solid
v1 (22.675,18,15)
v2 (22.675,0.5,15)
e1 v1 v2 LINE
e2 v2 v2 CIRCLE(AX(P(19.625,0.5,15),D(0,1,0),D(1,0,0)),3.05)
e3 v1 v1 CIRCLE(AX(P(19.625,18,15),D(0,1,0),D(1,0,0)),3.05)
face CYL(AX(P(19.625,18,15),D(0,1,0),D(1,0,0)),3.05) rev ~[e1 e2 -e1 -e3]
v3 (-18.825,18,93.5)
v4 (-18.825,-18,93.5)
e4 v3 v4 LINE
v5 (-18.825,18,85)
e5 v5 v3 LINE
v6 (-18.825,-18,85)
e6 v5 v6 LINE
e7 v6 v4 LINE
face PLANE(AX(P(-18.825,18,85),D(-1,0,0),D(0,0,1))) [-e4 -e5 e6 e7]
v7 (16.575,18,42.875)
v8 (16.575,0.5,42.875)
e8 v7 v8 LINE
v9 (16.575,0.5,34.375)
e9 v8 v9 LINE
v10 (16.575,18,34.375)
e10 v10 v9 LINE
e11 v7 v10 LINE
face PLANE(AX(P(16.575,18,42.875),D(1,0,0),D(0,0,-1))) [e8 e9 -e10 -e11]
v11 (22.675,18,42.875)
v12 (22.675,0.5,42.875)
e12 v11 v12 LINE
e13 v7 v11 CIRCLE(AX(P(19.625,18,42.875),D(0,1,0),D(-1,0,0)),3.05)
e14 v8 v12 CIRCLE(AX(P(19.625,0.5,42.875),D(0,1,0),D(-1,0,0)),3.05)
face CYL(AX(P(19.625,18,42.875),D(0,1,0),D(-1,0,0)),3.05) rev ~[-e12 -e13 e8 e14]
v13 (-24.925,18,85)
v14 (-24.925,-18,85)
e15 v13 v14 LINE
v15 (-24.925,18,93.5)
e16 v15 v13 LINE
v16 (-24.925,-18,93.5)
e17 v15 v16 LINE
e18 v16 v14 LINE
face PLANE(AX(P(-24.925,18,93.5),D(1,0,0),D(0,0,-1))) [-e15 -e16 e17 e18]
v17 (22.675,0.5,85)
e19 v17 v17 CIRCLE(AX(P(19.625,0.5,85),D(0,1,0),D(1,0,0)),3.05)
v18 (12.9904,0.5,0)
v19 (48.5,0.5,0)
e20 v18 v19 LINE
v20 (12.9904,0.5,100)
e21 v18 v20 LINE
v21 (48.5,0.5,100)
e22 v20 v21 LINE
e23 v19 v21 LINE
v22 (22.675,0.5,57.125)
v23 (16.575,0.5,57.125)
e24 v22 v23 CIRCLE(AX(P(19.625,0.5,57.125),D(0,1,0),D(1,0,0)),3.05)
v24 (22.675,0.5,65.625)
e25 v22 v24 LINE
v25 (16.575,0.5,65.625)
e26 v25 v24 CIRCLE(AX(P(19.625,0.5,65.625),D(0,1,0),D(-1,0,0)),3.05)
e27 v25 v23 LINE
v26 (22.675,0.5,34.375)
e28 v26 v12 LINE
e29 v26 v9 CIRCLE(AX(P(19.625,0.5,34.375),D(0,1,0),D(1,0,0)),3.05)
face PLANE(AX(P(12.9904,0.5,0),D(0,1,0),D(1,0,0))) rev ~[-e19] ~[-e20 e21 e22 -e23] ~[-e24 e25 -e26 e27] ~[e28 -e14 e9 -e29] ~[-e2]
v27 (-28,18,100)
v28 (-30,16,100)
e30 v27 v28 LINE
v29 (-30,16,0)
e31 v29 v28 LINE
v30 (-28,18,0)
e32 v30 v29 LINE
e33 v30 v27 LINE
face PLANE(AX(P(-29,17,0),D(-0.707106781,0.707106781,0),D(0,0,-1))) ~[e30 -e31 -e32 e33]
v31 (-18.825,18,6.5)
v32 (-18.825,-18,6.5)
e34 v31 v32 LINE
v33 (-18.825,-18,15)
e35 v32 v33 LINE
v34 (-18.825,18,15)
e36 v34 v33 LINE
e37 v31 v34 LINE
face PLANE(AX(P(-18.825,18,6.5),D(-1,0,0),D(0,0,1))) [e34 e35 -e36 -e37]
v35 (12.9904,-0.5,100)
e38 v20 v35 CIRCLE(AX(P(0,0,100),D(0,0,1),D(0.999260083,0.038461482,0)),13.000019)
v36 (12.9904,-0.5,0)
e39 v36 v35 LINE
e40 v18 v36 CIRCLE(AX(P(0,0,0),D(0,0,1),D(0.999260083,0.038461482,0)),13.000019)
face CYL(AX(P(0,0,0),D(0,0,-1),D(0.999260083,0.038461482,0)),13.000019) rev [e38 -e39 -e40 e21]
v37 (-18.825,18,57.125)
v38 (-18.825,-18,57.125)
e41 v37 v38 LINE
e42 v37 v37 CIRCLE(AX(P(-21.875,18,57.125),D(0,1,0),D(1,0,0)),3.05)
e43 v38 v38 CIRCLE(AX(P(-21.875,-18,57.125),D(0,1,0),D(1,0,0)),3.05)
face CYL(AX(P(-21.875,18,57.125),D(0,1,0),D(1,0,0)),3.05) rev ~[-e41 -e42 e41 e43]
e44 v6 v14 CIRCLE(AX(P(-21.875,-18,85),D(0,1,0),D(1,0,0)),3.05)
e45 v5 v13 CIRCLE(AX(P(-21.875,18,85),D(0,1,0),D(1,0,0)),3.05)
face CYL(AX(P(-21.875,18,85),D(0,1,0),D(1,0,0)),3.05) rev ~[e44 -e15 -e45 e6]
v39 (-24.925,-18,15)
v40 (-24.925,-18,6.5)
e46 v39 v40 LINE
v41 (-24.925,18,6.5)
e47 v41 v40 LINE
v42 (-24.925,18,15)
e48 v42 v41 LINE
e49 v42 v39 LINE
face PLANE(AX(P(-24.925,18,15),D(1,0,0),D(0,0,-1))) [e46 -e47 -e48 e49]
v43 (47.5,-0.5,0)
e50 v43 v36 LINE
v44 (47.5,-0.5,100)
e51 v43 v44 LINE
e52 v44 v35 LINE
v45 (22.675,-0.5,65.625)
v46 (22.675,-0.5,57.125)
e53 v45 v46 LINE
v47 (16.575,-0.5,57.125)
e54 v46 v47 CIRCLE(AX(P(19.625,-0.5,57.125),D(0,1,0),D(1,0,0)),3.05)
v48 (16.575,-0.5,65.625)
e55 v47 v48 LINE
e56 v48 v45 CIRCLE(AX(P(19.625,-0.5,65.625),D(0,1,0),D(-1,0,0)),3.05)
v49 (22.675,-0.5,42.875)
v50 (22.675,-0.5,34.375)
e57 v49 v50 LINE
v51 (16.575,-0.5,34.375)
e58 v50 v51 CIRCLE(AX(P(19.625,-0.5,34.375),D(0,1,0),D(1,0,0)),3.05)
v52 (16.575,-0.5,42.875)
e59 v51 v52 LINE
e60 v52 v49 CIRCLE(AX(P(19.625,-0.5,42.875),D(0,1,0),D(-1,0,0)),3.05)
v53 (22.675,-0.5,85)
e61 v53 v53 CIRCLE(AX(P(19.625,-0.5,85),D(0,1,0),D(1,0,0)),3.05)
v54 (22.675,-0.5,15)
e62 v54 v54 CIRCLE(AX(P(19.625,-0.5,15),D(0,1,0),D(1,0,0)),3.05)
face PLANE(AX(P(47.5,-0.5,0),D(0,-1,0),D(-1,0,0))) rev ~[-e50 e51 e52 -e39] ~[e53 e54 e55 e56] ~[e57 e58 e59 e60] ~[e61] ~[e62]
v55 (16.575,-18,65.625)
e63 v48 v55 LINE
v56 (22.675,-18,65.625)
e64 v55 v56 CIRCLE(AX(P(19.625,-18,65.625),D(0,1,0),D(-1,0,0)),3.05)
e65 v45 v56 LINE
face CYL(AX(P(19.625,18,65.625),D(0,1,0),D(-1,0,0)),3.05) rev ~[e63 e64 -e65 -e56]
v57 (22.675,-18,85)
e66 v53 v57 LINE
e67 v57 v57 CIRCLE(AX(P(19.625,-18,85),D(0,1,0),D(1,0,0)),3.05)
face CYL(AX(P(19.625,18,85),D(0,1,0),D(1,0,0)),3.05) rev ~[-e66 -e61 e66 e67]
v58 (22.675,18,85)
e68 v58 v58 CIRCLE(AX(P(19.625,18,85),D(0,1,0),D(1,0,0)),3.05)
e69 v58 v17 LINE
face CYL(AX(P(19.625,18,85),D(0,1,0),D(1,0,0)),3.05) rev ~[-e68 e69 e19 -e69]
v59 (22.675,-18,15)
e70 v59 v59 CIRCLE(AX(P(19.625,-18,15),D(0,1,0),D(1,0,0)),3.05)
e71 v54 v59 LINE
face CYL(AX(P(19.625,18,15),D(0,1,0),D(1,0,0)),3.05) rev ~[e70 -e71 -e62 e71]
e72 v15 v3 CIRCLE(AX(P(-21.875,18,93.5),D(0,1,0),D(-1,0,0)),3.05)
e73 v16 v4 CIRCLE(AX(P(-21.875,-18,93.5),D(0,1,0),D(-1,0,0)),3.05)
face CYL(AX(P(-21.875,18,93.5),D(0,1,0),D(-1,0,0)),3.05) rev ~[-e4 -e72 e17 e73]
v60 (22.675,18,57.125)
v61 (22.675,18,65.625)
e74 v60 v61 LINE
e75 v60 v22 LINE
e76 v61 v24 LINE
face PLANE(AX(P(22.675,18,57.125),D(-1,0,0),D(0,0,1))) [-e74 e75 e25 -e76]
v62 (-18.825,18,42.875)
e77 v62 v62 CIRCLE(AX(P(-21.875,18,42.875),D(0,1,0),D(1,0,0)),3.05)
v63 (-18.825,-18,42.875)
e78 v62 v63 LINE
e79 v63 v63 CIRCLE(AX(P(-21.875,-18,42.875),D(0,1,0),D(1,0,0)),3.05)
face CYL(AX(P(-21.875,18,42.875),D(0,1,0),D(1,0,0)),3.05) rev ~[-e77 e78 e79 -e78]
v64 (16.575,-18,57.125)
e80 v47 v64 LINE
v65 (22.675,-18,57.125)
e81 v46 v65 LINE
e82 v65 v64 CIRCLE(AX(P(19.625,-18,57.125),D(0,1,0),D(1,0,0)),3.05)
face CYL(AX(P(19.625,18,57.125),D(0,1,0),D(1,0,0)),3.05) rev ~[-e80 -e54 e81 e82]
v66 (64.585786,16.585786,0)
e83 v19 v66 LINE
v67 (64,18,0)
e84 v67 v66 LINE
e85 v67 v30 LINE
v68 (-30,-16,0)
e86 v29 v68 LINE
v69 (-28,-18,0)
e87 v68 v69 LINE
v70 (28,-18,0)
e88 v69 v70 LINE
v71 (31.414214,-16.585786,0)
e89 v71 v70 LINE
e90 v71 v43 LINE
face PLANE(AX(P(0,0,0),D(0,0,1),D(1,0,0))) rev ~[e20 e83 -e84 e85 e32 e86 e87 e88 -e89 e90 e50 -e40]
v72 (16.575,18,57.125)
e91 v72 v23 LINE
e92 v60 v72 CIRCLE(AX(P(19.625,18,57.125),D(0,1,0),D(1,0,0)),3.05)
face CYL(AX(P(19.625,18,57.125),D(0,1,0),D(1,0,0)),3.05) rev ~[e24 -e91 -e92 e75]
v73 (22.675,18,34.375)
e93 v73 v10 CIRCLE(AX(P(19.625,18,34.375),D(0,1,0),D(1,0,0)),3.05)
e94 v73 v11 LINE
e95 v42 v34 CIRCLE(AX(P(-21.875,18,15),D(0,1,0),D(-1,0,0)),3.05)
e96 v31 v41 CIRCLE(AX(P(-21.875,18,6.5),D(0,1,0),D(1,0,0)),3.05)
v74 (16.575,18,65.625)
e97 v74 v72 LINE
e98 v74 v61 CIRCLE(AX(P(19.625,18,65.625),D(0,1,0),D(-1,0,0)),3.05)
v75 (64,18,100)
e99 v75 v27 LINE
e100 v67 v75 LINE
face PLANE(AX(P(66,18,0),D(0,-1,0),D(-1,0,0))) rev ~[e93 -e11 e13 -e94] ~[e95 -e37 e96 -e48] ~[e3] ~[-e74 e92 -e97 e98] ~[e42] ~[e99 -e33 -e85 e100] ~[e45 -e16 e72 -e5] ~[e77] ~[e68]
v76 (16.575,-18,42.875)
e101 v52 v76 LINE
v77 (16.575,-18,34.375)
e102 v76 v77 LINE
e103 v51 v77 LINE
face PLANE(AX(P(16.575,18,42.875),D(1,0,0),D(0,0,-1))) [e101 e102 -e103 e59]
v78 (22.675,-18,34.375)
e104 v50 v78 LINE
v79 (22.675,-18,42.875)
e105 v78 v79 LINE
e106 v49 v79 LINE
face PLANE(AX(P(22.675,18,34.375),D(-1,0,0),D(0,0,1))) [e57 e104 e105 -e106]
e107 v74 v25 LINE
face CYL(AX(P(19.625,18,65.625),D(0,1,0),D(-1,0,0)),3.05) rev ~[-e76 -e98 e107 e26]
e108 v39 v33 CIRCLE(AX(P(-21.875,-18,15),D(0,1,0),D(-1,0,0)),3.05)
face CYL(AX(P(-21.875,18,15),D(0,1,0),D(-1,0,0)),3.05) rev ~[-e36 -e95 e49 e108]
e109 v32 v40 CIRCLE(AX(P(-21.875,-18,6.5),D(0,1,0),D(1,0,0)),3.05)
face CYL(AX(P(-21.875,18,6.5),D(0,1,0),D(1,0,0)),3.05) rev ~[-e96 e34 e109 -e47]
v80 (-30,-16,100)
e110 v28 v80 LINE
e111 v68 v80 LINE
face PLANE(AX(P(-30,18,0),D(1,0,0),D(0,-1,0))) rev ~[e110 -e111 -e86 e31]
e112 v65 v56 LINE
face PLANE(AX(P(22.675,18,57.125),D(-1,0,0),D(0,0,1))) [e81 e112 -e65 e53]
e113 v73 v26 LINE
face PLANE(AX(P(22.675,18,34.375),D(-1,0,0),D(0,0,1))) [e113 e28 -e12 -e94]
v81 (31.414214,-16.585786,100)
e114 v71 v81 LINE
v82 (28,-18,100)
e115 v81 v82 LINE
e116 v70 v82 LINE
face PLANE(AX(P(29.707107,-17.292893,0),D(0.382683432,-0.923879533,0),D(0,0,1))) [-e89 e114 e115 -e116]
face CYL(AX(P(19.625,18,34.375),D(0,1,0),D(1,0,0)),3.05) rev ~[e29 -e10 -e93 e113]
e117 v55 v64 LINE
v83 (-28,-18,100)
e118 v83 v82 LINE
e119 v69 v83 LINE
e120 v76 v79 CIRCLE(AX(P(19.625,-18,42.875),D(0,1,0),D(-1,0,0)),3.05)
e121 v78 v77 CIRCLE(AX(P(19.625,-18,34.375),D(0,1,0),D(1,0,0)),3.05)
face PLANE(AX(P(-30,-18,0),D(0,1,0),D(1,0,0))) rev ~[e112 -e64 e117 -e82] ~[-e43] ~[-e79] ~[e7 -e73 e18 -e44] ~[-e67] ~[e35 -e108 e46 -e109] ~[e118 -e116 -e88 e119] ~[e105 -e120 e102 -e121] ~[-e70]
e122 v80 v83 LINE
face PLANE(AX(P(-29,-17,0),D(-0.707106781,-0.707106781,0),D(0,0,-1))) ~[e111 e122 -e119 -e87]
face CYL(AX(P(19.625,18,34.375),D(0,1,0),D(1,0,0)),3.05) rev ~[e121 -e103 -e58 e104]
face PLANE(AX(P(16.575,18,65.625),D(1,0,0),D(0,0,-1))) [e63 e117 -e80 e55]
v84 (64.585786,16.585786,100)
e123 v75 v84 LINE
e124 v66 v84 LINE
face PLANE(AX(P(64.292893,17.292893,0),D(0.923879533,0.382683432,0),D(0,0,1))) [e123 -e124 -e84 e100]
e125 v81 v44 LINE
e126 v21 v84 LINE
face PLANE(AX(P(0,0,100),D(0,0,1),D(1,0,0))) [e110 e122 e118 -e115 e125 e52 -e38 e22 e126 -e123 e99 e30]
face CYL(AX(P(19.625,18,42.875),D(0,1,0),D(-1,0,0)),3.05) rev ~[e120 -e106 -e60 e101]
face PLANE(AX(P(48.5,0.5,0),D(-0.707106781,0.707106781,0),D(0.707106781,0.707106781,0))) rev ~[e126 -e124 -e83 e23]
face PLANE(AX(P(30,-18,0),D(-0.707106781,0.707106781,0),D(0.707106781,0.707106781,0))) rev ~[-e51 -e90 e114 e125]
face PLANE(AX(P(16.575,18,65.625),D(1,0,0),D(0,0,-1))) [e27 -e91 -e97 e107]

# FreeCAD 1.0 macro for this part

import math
import FreeCAD as App
import Part
import Sketcher
from FreeCAD import Vector


def edges_at(feature, points):
    """Names of the edges that pass closest to the given points."""
    edges = feature.Shape.Edges
    near = lambda p: min(range(len(edges)), key=lambda i: edges[i].distToShape(Part.Vertex(*p))[0])
    return sorted({f"Edge{near(p) + 1}" for p in points})

doc = App.newDocument("Part")
body = doc.addObject("PartDesign::Body", "Body")

sketch1 = body.newObject("Sketcher::SketchObject", "Sketch")
sketch1.AttachmentSupport = (doc.getObject("XY_Plane"), [""])
sketch1.MapMode = "FlatFace"
sketch1.addGeometry(Part.LineSegment(Vector(66, 18, 0), Vector(-30, 18, 0)), False)
sketch1.addGeometry(Part.LineSegment(Vector(-30, 18, 0), Vector(-30, -18, 0)), False)
sketch1.addGeometry(Part.LineSegment(Vector(-30, -18, 0), Vector(30, -18, 0)), False)
sketch1.addGeometry(Part.LineSegment(Vector(30, -18, 0), Vector(47.5, -0.5, 0)), False)
sketch1.addGeometry(Part.LineSegment(Vector(47.5, -0.5, 0), Vector(13, -0.5, 0)), False)
sketch1.addGeometry(Part.ArcOfCircle(Part.Circle(Vector(0, 0, 0), Vector(0, 0, 1), 13), math.radians(2), math.radians(358)), False)
sketch1.addGeometry(Part.LineSegment(Vector(13, 0.5, 0), Vector(48.5, 0.5, 0)), False)
sketch1.addGeometry(Part.LineSegment(Vector(48.5, 0.5, 0), Vector(66, 18, 0)), False)
sketch1.addConstraint(Sketcher.Constraint("Coincident", 0, 2, 1, 1))
sketch1.addConstraint(Sketcher.Constraint("Coincident", 1, 2, 2, 1))
sketch1.addConstraint(Sketcher.Constraint("Coincident", 2, 2, 3, 1))
sketch1.addConstraint(Sketcher.Constraint("Coincident", 3, 2, 4, 1))
sketch1.addConstraint(Sketcher.Constraint("Coincident", 4, 2, 5, 2))
sketch1.addConstraint(Sketcher.Constraint("Coincident", 5, 1, 6, 1))
sketch1.addConstraint(Sketcher.Constraint("Coincident", 6, 2, 7, 1))
sketch1.addConstraint(Sketcher.Constraint("Coincident", 7, 2, 0, 1))
sketch1.addConstraint(Sketcher.Constraint("Horizontal", 0))
sketch1.addConstraint(Sketcher.Constraint("Vertical", 1))
sketch1.addConstraint(Sketcher.Constraint("Horizontal", 2))
sketch1.addConstraint(Sketcher.Constraint("Horizontal", 4))
sketch1.addConstraint(Sketcher.Constraint("Horizontal", 6))
sketch1.addConstraint(Sketcher.Constraint("Coincident", 5, 3, -1, 1))
sketch1.addConstraint(Sketcher.Constraint("Symmetric", 0, 2, 2, 2, -1, 1))
sketch1.addConstraint(Sketcher.Constraint("Parallel", 3, 7))
sketch1.addConstraint(Sketcher.Constraint("Vertical", 4, 2, 5, 1))
sketch1.addConstraint(Sketcher.Constraint("Radius", 5, 13.0))
sketch1.addConstraint(Sketcher.Constraint("DistanceX", 2, 1, 2, 2, 60.0))
sketch1.addConstraint(Sketcher.Constraint("DistanceY", 1, 2, 1, 1, 36.0))
sketch1.addConstraint(Sketcher.Constraint("DistanceY", 4, 2, 5, 1, 1.0))
sketch1.addConstraint(Sketcher.Constraint("DistanceX", 3, 2, 6, 2, 1.0))
sketch1.addConstraint(Sketcher.Constraint("DistanceX", 2, 2, 7, 2, 36.0))
pad1 = body.newObject("PartDesign::Pad", "Pad")
pad1.Profile = sketch1
pad1.Length = 100

sketch2 = body.newObject("Sketcher::SketchObject", "Sketch001")
sketch2.AttachmentSupport = (doc.getObject("XZ_Plane"), [""])
sketch2.MapMode = "FlatFace"
sketch2.AttachmentOffset = App.Placement(Vector(0, 0, -18), App.Rotation())
sketch2.addGeometry(Part.LineSegment(Vector(-24.9, 6.5, 0), Vector(-24.9, 15, 0)), False)
sketch2.addGeometry(Part.ArcOfCircle(Part.Circle(Vector(-21.9, 15, 0), Vector(0, 0, 1), 3), math.radians(0), math.radians(180)), False)
sketch2.addGeometry(Part.LineSegment(Vector(-18.8, 15, 0), Vector(-18.8, 6.5, 0)), False)
sketch2.addGeometry(Part.ArcOfCircle(Part.Circle(Vector(-21.9, 6.5, 0), Vector(0, 0, 1), 3.1), math.radians(180), math.radians(360)), False)
sketch2.addGeometry(Part.Circle(Vector(19.6, 15, 0), Vector(0, 0, 1), 3), False)
sketch2.addGeometry(Part.Circle(Vector(19.6, 85, 0), Vector(0, 0, 1), 3), False)
sketch2.addGeometry(Part.Circle(Vector(-21.9, 42.9, 0), Vector(0, 0, 1), 3), False)
sketch2.addGeometry(Part.LineSegment(Vector(16.6, 34.4, 0), Vector(16.6, 42.9, 0)), False)
sketch2.addGeometry(Part.ArcOfCircle(Part.Circle(Vector(19.6, 42.9, 0), Vector(0, 0, 1), 3), math.radians(0), math.radians(180)), False)
sketch2.addGeometry(Part.LineSegment(Vector(22.7, 42.9, 0), Vector(22.7, 34.4, 0)), False)
sketch2.addGeometry(Part.ArcOfCircle(Part.Circle(Vector(19.6, 34.4, 0), Vector(0, 0, 1), 3), math.radians(180), math.radians(360)), False)
sketch2.addGeometry(Part.Circle(Vector(-21.9, 57.1, 0), Vector(0, 0, 1), 3), False)
sketch2.addGeometry(Part.LineSegment(Vector(16.6, 57.1, 0), Vector(16.6, 65.6, 0)), False)
sketch2.addGeometry(Part.ArcOfCircle(Part.Circle(Vector(19.6, 65.6, 0), Vector(0, 0, 1), 3), math.radians(0), math.radians(180)), False)
sketch2.addGeometry(Part.LineSegment(Vector(22.7, 65.6, 0), Vector(22.7, 57.1, 0)), False)
sketch2.addGeometry(Part.ArcOfCircle(Part.Circle(Vector(19.6, 57.1, 0), Vector(0, 0, 1), 3), math.radians(180), math.radians(360)), False)
sketch2.addGeometry(Part.LineSegment(Vector(-24.9, 85, 0), Vector(-24.9, 93.5, 0)), False)
sketch2.addGeometry(Part.ArcOfCircle(Part.Circle(Vector(-21.9, 93.5, 0), Vector(0, 0, 1), 3), math.radians(0), math.radians(180)), False)
sketch2.addGeometry(Part.LineSegment(Vector(-18.8, 93.5, 0), Vector(-18.8, 85, 0)), False)
sketch2.addGeometry(Part.ArcOfCircle(Part.Circle(Vector(-21.9, 85, 0), Vector(0, 0, 1), 3.1), math.radians(180), math.radians(360)), False)
sketch2.addConstraint(Sketcher.Constraint("Tangent", 0, 2, 1, 2))
sketch2.addConstraint(Sketcher.Constraint("Tangent", 1, 1, 2, 1))
sketch2.addConstraint(Sketcher.Constraint("Tangent", 2, 2, 3, 2))
sketch2.addConstraint(Sketcher.Constraint("Tangent", 3, 1, 0, 1))
sketch2.addConstraint(Sketcher.Constraint("Tangent", 7, 2, 8, 2))
sketch2.addConstraint(Sketcher.Constraint("Tangent", 8, 1, 9, 1))
sketch2.addConstraint(Sketcher.Constraint("Tangent", 9, 2, 10, 2))
sketch2.addConstraint(Sketcher.Constraint("Tangent", 10, 1, 7, 1))
sketch2.addConstraint(Sketcher.Constraint("Tangent", 12, 2, 13, 2))
sketch2.addConstraint(Sketcher.Constraint("Tangent", 13, 1, 14, 1))
sketch2.addConstraint(Sketcher.Constraint("Tangent", 14, 2, 15, 2))
sketch2.addConstraint(Sketcher.Constraint("Tangent", 15, 1, 12, 1))
sketch2.addConstraint(Sketcher.Constraint("Tangent", 16, 2, 17, 2))
sketch2.addConstraint(Sketcher.Constraint("Tangent", 17, 1, 18, 1))
sketch2.addConstraint(Sketcher.Constraint("Tangent", 18, 2, 19, 2))
sketch2.addConstraint(Sketcher.Constraint("Tangent", 19, 1, 16, 1))
sketch2.addConstraint(Sketcher.Constraint("Vertical", 0))
sketch2.addConstraint(Sketcher.Constraint("Vertical", 2))
sketch2.addConstraint(Sketcher.Constraint("Vertical", 7))
sketch2.addConstraint(Sketcher.Constraint("Vertical", 9))
sketch2.addConstraint(Sketcher.Constraint("Vertical", 12))
sketch2.addConstraint(Sketcher.Constraint("Vertical", 14))
sketch2.addConstraint(Sketcher.Constraint("Vertical", 16))
sketch2.addConstraint(Sketcher.Constraint("Vertical", 18))
sketch2.addConstraint(Sketcher.Constraint("Equal", 3, 4))
sketch2.addConstraint(Sketcher.Constraint("Equal", 4, 5))
sketch2.addConstraint(Sketcher.Constraint("Equal", 5, 6))
sketch2.addConstraint(Sketcher.Constraint("Equal", 6, 8))
sketch2.addConstraint(Sketcher.Constraint("Equal", 10, 11))
sketch2.addConstraint(Sketcher.Constraint("Equal", 11, 13))
sketch2.addConstraint(Sketcher.Constraint("Equal", 15, 17))
sketch2.addConstraint(Sketcher.Constraint("Horizontal", 1, 3, 4, 3))
sketch2.addConstraint(Sketcher.Constraint("Horizontal", 6, 3, 8, 3))
sketch2.addConstraint(Sketcher.Constraint("Horizontal", 11, 3, 15, 3))
sketch2.addConstraint(Sketcher.Constraint("Horizontal", 5, 3, 19, 3))
sketch2.addConstraint(Sketcher.Constraint("Vertical", 4, 3, 5, 3))
sketch2.addConstraint(Sketcher.Constraint("Vertical", 3, 3, 6, 3))
sketch2.addConstraint(Sketcher.Constraint("Vertical", 5, 3, 8, 3))
sketch2.addConstraint(Sketcher.Constraint("Vertical", 6, 3, 11, 3))
sketch2.addConstraint(Sketcher.Constraint("Vertical", 10, 3, 13, 3))
sketch2.addConstraint(Sketcher.Constraint("Vertical", 11, 3, 17, 3))
sketch2.addConstraint(Sketcher.Constraint("Equal", 2, 7))
sketch2.addConstraint(Sketcher.Constraint("Equal", 9, 12))
sketch2.addConstraint(Sketcher.Constraint("Equal", 14, 16))
sketch2.addConstraint(Sketcher.Constraint("Diameter", 4, 6.1))
sketch2.addConstraint(Sketcher.Constraint("DistanceY", 0, 1, 0, 2, 8.5))
sketch2.addConstraint(Sketcher.Constraint("DistanceY", -1, 1, 1, 3, 15.0))
sketch2.addConstraint(Sketcher.Constraint("DistanceY", -1, 1, 5, 3, 85.0))
sketch2.addConstraint(Sketcher.Constraint("DistanceX", 1, 3, 4, 3, 41.5))
sketch2.addConstraint(Sketcher.Constraint("DistanceY", 6, 3, 11, 3, 14.25))
sketch2.addConstraint(Sketcher.Constraint("DistanceX", 1, 3, -1, 1, 21.875))
sketch2.addConstraint(Sketcher.Constraint("DistanceY", -1, 1, 6, 3, 42.875))
pocket1 = body.newObject("PartDesign::Pocket", "Pocket")
pocket1.Profile = sketch2
pocket1.Type = "ThroughAll"
pocket1.Reversed = True
doc.recompute()

chamfer = body.newObject("PartDesign::Chamfer", "Chamfer")
chamfer.Base = (pocket1, edges_at(pocket1, [
    (-30, 18, 50),
    (-30, -18, 50),
    (66, 18, 50),
    (30, -18, 50),
]))
chamfer.Size = 2

doc.recompute()
